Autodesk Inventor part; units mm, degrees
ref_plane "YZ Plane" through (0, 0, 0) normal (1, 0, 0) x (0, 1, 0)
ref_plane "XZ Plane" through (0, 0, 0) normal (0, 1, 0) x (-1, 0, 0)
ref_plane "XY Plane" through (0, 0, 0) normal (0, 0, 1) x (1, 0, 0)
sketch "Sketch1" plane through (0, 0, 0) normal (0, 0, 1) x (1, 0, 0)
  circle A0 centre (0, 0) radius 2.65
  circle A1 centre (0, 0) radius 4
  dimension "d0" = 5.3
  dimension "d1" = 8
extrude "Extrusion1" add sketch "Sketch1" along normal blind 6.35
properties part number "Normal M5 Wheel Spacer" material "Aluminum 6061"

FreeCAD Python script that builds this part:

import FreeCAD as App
import Part
import Sketcher

V = App.Vector
Q = App.Units.Quantity

doc = App.newDocument("Part")
params = doc.addObject("Spreadsheet::Sheet", "Params")
for row, (alias, value) in enumerate([
    ("sketch1_diameter", "8 mm"),
    ("sketch1_diameter2", "5.3 mm"),
    ("pad1_length", "6.35 mm"),
], start=1):
    params.set(f"A{row}", alias)
    params.set(f"B{row}", "=" + value)
    params.setAlias(f"B{row}", alias)

body = doc.addObject("PartDesign::Body", "Body")

# Sketch on XY plane
sketch1 = doc.addObject("Sketcher::SketchObject", "Sketch")
body.addObject(sketch1)
sketch1.AttachmentSupport = (doc.XY_Plane, [""])
sketch1.MapMode = "FlatFace"
sketch1.addGeometry([
    Part.Circle(V(0, 0, 0), V(0, 0, 1), 4),
    Part.Circle(V(0, 0, 0), V(0, 0, 1), 2.6),
], False)
sketch1.addConstraint([
    Sketcher.Constraint("Coincident", 0, 3, -1, 1),
    Sketcher.Constraint("Coincident", 1, 3, -1, 1),
    Sketcher.Constraint("Diameter", 0, Q("8 mm")),
    Sketcher.Constraint("Diameter", 1, Q("5.3 mm")),
])
sketch1.setExpression("Constraints[2]", "Params.sketch1_diameter")
sketch1.setExpression("Constraints[3]", "Params.sketch1_diameter2")
pad1 = doc.addObject("PartDesign::Pad", "Pad")
body.addObject(pad1)
pad1.Profile = sketch1
pad1.setExpression("Length", "Params.pad1_length")

doc.recompute()
